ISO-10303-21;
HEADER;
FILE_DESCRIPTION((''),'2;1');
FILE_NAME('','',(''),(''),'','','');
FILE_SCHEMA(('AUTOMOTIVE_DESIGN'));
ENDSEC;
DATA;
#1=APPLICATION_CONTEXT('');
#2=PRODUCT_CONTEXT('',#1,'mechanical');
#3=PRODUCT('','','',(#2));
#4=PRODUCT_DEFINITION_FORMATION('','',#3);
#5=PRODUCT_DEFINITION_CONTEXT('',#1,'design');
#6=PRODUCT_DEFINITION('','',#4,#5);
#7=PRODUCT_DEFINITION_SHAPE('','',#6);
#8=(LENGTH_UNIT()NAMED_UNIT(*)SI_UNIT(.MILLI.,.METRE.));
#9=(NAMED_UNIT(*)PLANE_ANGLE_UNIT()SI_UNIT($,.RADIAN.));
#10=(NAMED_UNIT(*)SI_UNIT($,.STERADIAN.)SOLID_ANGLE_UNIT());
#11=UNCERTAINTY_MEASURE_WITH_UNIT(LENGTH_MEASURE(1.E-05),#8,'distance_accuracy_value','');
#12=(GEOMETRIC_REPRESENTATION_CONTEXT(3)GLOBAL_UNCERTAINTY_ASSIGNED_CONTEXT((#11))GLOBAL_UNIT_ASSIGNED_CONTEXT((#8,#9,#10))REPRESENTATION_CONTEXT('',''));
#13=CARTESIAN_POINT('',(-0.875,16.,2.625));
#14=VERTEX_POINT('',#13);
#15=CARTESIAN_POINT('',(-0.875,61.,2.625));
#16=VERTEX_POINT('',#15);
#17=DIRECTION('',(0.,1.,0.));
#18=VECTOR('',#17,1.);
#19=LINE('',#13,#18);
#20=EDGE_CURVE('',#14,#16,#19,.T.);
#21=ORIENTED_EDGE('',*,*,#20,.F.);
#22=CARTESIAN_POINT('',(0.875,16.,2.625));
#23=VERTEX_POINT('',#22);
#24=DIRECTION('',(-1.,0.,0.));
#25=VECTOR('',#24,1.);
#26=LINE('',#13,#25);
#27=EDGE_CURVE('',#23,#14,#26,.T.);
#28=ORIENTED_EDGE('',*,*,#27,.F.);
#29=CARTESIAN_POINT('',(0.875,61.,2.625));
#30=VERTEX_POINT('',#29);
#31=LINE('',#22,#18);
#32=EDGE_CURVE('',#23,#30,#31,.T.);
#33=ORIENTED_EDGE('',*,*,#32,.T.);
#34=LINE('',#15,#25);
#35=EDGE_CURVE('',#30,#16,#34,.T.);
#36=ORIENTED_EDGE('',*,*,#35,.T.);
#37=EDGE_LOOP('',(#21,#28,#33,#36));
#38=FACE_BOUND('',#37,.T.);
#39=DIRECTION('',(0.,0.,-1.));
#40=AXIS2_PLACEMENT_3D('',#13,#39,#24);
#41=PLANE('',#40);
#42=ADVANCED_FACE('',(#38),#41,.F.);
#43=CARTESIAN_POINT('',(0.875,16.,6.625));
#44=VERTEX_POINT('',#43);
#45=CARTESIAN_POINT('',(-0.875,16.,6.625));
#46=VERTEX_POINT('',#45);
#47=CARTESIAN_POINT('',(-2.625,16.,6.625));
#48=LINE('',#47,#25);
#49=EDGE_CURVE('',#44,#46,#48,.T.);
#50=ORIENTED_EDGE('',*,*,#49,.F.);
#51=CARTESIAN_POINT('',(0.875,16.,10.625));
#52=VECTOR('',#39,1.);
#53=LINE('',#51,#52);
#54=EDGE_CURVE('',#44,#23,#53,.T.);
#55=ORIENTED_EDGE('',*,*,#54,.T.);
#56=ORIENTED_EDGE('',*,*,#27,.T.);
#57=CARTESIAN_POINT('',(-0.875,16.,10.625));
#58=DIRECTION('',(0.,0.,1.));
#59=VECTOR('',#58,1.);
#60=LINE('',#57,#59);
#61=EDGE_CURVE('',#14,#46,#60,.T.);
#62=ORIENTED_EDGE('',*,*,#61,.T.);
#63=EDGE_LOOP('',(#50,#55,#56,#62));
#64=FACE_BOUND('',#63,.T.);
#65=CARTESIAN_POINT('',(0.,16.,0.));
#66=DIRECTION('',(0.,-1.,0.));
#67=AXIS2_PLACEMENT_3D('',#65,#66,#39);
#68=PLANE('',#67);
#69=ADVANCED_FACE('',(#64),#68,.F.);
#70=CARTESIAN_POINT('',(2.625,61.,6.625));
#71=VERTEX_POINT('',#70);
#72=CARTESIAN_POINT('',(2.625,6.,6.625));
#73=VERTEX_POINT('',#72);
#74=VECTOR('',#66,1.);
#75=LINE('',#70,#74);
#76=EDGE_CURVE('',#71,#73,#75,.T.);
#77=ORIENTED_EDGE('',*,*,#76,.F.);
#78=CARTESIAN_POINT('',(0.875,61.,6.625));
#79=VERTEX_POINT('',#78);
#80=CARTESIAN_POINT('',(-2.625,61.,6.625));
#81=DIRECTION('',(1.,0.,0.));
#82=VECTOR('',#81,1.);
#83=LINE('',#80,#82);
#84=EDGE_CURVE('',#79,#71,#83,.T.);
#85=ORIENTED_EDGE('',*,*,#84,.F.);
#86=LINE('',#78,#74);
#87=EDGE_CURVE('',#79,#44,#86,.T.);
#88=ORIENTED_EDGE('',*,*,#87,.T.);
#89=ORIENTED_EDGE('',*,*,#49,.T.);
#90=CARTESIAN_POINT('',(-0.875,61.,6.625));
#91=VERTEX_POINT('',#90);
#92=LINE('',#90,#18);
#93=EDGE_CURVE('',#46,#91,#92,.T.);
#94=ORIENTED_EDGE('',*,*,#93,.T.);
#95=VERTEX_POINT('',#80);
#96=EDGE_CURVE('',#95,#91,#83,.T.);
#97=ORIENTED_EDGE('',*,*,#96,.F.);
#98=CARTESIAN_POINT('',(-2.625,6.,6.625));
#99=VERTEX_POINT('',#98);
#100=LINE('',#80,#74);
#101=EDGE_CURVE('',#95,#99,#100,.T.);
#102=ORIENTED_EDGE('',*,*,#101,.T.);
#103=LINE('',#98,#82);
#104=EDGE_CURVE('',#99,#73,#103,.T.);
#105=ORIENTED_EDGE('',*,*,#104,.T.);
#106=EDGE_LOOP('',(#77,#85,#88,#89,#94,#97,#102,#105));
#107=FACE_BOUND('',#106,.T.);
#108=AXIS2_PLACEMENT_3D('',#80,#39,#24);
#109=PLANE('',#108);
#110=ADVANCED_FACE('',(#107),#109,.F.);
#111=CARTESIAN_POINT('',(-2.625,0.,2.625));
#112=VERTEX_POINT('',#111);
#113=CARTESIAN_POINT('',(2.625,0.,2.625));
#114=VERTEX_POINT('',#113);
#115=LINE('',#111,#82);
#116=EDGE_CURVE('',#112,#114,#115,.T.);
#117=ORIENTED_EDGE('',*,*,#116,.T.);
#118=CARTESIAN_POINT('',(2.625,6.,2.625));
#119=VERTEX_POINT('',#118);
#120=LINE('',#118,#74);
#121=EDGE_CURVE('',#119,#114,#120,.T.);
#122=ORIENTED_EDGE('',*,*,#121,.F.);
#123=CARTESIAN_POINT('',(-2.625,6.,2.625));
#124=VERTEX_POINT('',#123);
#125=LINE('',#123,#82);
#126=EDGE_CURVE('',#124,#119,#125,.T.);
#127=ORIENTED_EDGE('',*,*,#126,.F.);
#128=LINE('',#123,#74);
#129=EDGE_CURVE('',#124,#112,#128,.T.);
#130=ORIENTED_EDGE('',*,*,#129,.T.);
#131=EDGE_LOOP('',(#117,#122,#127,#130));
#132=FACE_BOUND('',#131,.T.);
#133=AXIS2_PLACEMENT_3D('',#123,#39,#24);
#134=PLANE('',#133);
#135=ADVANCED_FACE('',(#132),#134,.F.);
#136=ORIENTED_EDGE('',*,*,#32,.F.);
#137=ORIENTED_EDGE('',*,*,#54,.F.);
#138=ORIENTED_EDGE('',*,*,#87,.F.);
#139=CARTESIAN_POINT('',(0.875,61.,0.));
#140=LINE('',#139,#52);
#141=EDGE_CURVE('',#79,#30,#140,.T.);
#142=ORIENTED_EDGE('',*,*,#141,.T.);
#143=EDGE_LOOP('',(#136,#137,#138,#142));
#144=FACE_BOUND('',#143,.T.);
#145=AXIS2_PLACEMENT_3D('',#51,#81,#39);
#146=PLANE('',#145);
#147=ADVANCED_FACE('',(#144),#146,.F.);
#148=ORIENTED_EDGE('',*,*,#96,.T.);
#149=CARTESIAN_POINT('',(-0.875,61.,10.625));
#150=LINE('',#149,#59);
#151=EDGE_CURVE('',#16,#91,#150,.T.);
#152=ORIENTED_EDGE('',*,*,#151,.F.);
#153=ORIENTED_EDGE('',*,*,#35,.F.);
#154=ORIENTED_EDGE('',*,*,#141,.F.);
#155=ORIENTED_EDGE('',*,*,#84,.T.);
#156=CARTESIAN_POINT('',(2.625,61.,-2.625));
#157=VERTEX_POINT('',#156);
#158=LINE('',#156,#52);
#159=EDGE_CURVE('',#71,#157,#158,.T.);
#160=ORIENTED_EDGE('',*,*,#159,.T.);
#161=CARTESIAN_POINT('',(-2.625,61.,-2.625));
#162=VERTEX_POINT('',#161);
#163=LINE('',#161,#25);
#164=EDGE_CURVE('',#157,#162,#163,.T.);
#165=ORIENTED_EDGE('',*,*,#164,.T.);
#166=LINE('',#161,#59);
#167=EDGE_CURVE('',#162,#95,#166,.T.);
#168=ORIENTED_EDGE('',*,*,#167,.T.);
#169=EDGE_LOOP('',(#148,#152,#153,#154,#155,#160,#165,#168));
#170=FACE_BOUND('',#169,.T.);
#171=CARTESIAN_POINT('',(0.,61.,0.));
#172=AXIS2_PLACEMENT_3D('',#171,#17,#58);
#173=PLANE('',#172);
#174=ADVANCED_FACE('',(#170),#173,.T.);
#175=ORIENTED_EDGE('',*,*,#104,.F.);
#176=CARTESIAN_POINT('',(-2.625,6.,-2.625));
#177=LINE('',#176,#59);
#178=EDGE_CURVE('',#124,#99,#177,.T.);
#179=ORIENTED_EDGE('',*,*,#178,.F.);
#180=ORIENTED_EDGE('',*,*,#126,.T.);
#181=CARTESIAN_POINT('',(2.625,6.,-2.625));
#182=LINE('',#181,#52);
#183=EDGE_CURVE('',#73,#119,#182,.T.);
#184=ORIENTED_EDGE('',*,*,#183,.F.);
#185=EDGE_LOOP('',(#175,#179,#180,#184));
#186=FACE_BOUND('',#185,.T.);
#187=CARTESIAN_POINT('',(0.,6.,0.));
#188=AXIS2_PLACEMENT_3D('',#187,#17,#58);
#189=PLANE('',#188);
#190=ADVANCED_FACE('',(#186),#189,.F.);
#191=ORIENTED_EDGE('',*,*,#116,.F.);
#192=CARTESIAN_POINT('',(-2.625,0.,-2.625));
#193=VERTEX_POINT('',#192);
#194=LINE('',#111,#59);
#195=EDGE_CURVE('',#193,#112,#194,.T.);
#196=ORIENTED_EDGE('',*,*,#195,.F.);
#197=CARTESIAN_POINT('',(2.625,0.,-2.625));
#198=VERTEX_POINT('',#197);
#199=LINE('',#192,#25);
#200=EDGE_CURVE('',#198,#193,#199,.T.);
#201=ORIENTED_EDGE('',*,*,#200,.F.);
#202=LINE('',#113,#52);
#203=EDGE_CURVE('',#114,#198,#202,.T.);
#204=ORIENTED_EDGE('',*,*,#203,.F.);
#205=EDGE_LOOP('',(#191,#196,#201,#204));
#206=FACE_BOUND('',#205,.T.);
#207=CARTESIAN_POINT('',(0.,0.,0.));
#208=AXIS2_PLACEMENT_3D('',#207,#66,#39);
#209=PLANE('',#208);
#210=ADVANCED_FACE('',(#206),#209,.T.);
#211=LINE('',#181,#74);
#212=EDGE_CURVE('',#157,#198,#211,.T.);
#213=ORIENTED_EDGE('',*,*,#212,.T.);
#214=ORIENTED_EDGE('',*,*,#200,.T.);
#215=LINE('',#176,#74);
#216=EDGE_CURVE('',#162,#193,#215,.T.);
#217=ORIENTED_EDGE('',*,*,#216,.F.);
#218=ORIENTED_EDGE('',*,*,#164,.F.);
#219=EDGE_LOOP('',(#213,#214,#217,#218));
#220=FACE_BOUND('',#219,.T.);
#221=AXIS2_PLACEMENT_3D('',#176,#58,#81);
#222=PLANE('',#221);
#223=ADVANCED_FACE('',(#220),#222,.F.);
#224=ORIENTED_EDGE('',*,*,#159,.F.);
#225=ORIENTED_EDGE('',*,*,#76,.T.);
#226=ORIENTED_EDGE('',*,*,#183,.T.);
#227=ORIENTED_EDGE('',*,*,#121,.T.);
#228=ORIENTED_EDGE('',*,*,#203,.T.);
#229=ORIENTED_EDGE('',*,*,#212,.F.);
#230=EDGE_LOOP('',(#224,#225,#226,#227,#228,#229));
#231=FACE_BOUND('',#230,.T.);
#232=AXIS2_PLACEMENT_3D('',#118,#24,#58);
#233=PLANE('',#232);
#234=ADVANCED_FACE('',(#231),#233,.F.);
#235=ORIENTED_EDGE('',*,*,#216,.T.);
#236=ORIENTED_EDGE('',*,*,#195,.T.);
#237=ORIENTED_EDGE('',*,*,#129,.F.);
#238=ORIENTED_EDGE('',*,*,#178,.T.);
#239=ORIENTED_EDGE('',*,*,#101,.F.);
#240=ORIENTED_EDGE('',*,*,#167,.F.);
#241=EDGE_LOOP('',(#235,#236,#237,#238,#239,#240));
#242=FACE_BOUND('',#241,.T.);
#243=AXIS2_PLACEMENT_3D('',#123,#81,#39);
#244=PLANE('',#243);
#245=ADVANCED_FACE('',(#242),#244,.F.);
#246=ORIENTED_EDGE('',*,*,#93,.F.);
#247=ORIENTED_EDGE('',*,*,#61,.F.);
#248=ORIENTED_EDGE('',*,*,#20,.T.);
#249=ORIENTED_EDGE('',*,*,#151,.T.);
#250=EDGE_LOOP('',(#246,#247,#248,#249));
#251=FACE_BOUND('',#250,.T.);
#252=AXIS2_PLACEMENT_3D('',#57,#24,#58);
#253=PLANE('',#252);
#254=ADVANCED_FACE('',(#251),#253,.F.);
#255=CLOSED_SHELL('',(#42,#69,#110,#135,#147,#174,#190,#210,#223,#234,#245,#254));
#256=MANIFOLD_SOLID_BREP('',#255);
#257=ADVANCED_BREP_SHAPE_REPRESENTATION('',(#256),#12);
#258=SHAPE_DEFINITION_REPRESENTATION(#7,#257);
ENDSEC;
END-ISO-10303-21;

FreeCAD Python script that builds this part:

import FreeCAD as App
import Part
import Sketcher

V = App.Vector
Q = App.Units.Quantity

doc = App.newDocument("Part")
params = doc.addObject("Spreadsheet::Sheet", "Params")
for row, (alias, value) in enumerate([
    ("sketch1_width", "5.25 mm"),
    ("pad1_length", "6 mm"),
    ("sketch2_width", "5.25 mm"),
    ("sketch2_height", "9.25 mm"),
    ("pad2_length", "55 mm"),
    ("sketch3_height", "8 mm"),
    ("sketch3_width", "1.75 mm"),
    ("pocket1_length", "45 mm"),
], start=1):
    params.set(f"A{row}", alias)
    params.set(f"B{row}", "=" + value)
    params.setAlias(f"B{row}", alias)

body = doc.addObject("PartDesign::Body", "Body")

# Sketch on XZ plane
sketch1 = doc.addObject("Sketcher::SketchObject", "Sketch")
body.addObject(sketch1)
sketch1.AttachmentSupport = (doc.XZ_Plane, [""])
sketch1.MapMode = "FlatFace"
sketch1.addGeometry(Part.LineSegment(V(-2.625, -2.625, 0), V(-2.625, 2.625, 0)), False)
sketch1.addGeometry(Part.LineSegment(V(-2.625, 2.625, 0), V(2.625, 2.625, 0)), False)
sketch1.addGeometry(Part.LineSegment(V(2.625, 2.625, 0), V(2.625, -2.625, 0)), False)
sketch1.addGeometry(Part.LineSegment(V(2.625, -2.625, 0), V(-2.625, -2.625, 0)), False)
sketch1.addConstraint(Sketcher.Constraint("Coincident", 0, 2, 1, 1))
sketch1.addConstraint(Sketcher.Constraint("Coincident", 1, 2, 2, 1))
sketch1.addConstraint(Sketcher.Constraint("Coincident", 2, 2, 3, 1))
sketch1.addConstraint(Sketcher.Constraint("Coincident", 3, 2, 0, 1))
sketch1.addConstraint(Sketcher.Constraint("Vertical", 0))
sketch1.addConstraint(Sketcher.Constraint("Horizontal", 1))
sketch1.addConstraint(Sketcher.Constraint("Vertical", 2))
sketch1.addConstraint(Sketcher.Constraint("Horizontal", 3))
sketch1.addConstraint(Sketcher.Constraint("Symmetric", 0, 2, 2, 2, -1, 1))
sketch1.addConstraint(Sketcher.Constraint("Equal", 3, 0))
sketch1.addConstraint(Sketcher.Constraint("DistanceX", 1, 1, 1, 2, Q("5.25 mm")))
sketch1.setExpression("Constraints[10]", "Params.sketch1_width")
pad1 = doc.addObject("PartDesign::Pad", "Pad")
body.addObject(pad1)
pad1.Profile = sketch1
pad1.setExpression("Length", "Params.pad1_length")
pad1.Reversed = True

# Sketch on XZ plane
sketch2 = doc.addObject("Sketcher::SketchObject", "Sketch001")
body.addObject(sketch2)
sketch2.AttachmentSupport = (doc.XZ_Plane, [""])
sketch2.MapMode = "FlatFace"
sketch2.AttachmentOffset = App.Placement(V(0, 0, -6), App.Rotation())
sketch2.addGeometry(Part.LineSegment(V(-2.625, -2.625, 0), V(-2.625, 6.625, 0)), False)
sketch2.addGeometry(Part.LineSegment(V(-2.625, 6.625, 0), V(2.625, 6.625, 0)), False)
sketch2.addGeometry(Part.LineSegment(V(2.625, 6.625, 0), V(2.625, -2.625, 0)), False)
sketch2.addGeometry(Part.LineSegment(V(2.625, -2.625, 0), V(-2.625, -2.625, 0)), False)
sketch2.addConstraint(Sketcher.Constraint("Coincident", 0, 2, 1, 1))
sketch2.addConstraint(Sketcher.Constraint("Coincident", 1, 2, 2, 1))
sketch2.addConstraint(Sketcher.Constraint("Coincident", 2, 2, 3, 1))
sketch2.addConstraint(Sketcher.Constraint("Coincident", 3, 2, 0, 1))
sketch2.addConstraint(Sketcher.Constraint("Vertical", 0))
sketch2.addConstraint(Sketcher.Constraint("Horizontal", 1))
sketch2.addConstraint(Sketcher.Constraint("Vertical", 2))
sketch2.addConstraint(Sketcher.Constraint("Horizontal", 3))
sketch2.addConstraint(Sketcher.Constraint("DistanceX", 1, 1, 1, 2, Q("5.25 mm")))
sketch2.addConstraint(Sketcher.Constraint("DistanceY", 0, 1, 0, 2, Q("9.25 mm")))
sketch2.addConstraint(Sketcher.Constraint("DistanceX", 0, 2, -1, 1, Q("2.625 mm")))
sketch2.addConstraint(Sketcher.Constraint("DistanceY", -1, 1, 0, 2, Q("6.625 mm")))
sketch2.setExpression("Constraints[8]", "Params.sketch2_width")
sketch2.setExpression("Constraints[9]", "Params.sketch2_height")
pad2 = doc.addObject("PartDesign::Pad", "Pad001")
body.addObject(pad2)
pad2.Profile = sketch2
pad2.setExpression("Length", "Params.pad2_length")
pad2.Reversed = True

# Sketch on XZ plane
sketch3 = doc.addObject("Sketcher::SketchObject", "Sketch002")
body.addObject(sketch3)
sketch3.AttachmentSupport = (doc.XZ_Plane, [""])
sketch3.MapMode = "FlatFace"
sketch3.AttachmentOffset = App.Placement(V(0, 0, -61), App.Rotation())
sketch3.addGeometry(Part.LineSegment(V(-0.875, 2.625, 0), V(-0.875, 10.625, 0)), False)
sketch3.addGeometry(Part.LineSegment(V(-0.875, 10.625, 0), V(0.875, 10.625, 0)), False)
sketch3.addGeometry(Part.LineSegment(V(0.875, 10.625, 0), V(0.875, 2.625, 0)), False)
sketch3.addGeometry(Part.LineSegment(V(0.875, 2.625, 0), V(-0.875, 2.625, 0)), False)
sketch3.addConstraint(Sketcher.Constraint("Coincident", 0, 2, 1, 1))
sketch3.addConstraint(Sketcher.Constraint("Coincident", 1, 2, 2, 1))
sketch3.addConstraint(Sketcher.Constraint("Coincident", 2, 2, 3, 1))
sketch3.addConstraint(Sketcher.Constraint("Coincident", 3, 2, 0, 1))
sketch3.addConstraint(Sketcher.Constraint("Vertical", 0))
sketch3.addConstraint(Sketcher.Constraint("Horizontal", 1))
sketch3.addConstraint(Sketcher.Constraint("Vertical", 2))
sketch3.addConstraint(Sketcher.Constraint("Horizontal", 3))
sketch3.addConstraint(Sketcher.Constraint("DistanceY", 0, 1, 0, 2, Q("8 mm")))
sketch3.addConstraint(Sketcher.Constraint("DistanceX", 1, 1, 1, 2, Q("1.75 mm")))
sketch3.addConstraint(Sketcher.Constraint("DistanceX", 0, 2, -1, 1, Q("0.875 mm")))
sketch3.addConstraint(Sketcher.Constraint("DistanceY", -1, 1, 0, 2, Q("10.625 mm")))
sketch3.setExpression("Constraints[8]", "Params.sketch3_height")
sketch3.setExpression("Constraints[9]", "Params.sketch3_width")
pocket1 = doc.addObject("PartDesign::Pocket", "Pocket")
body.addObject(pocket1)
pocket1.Profile = sketch3
pocket1.setExpression("Length", "Params.pocket1_length")
pocket1.Reversed = True

doc.recompute()
